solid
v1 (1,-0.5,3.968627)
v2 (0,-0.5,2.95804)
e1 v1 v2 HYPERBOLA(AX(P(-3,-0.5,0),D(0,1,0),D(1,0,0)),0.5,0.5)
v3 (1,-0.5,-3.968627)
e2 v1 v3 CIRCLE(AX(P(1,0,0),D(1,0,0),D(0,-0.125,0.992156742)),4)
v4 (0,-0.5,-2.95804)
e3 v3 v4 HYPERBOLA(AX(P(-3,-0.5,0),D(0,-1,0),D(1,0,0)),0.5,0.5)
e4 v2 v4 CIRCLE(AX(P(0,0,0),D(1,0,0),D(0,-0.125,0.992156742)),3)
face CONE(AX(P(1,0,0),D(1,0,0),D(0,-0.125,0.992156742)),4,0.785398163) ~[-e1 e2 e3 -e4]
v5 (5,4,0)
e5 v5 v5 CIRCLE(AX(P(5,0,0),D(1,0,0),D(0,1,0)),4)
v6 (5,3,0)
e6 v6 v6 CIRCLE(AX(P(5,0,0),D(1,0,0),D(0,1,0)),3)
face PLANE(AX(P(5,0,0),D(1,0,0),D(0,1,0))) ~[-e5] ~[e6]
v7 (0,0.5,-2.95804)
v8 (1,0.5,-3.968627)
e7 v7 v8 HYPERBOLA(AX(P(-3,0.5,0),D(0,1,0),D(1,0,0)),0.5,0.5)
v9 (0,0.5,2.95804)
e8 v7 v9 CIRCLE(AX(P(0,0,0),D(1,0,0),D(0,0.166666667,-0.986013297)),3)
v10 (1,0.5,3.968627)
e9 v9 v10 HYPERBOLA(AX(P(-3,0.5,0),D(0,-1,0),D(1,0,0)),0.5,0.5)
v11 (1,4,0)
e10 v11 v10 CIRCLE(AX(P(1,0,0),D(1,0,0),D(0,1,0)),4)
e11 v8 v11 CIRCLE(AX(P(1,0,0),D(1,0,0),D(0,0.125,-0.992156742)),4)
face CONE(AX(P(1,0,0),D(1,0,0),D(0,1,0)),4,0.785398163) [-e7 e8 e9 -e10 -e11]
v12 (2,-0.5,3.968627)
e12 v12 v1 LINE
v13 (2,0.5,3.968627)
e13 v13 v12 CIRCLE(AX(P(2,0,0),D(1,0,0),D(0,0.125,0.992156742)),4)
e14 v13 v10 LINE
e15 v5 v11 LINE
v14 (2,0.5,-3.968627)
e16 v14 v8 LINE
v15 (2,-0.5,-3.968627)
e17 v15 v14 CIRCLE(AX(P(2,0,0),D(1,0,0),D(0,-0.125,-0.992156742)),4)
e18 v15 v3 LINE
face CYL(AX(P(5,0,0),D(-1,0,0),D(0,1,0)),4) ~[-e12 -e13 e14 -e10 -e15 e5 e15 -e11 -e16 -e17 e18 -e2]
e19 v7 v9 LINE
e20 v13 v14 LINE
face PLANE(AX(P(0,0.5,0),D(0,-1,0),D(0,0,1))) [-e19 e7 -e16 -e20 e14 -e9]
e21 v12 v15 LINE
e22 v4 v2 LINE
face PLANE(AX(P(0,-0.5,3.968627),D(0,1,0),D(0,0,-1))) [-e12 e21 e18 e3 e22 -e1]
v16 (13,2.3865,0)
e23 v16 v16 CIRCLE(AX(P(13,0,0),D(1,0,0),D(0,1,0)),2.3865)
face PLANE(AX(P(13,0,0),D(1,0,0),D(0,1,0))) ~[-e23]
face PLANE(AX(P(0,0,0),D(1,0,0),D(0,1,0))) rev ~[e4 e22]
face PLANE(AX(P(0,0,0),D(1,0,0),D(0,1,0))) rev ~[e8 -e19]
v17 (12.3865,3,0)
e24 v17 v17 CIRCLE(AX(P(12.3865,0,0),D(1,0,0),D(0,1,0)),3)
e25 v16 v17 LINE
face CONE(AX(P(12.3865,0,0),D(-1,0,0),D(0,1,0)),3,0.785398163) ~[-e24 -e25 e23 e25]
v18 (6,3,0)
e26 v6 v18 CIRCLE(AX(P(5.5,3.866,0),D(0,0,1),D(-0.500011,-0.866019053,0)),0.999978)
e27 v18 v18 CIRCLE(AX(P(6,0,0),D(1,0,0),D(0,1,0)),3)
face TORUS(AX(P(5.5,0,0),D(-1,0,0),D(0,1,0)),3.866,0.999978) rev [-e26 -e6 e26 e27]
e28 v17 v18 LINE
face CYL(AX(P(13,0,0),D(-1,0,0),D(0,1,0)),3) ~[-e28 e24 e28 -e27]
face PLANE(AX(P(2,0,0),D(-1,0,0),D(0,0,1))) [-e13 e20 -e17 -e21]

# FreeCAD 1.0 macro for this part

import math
import FreeCAD as App
import Part
import Sketcher

V = App.Vector
Q = App.Units.Quantity


def edges_at(feature, points):
    """Names of the edges that pass closest to the given points."""
    edges = feature.Shape.Edges
    near = lambda p: min(range(len(edges)), key=lambda i: edges[i].distToShape(Part.Vertex(*p))[0])
    return sorted({f"Edge{near(p) + 1}" for p in points})

doc = App.newDocument("Part")
body = doc.addObject("PartDesign::Body", "Body")

sketch1 = doc.addObject("Sketcher::SketchObject", "Sketch")
body.addObject(sketch1)
sketch1.AttachmentSupport = (doc.XY_Plane, [""])
sketch1.MapMode = "FlatFace"
sketch1.addGeometry(Part.LineSegment(V(0, 4, 0), V(0, 0, 0)), False)
sketch1.addGeometry(Part.LineSegment(V(0, 0, 0), V(13, 0, 0)), False)
sketch1.addGeometry(Part.LineSegment(V(13, 0, 0), V(13, 3, 0)), False)
sketch1.addGeometry(Part.LineSegment(V(13, 3, 0), V(5, 3, 0)), False)
sketch1.addGeometry(Part.LineSegment(V(5, 3, 0), V(5, 4, 0)), False)
sketch1.addGeometry(Part.LineSegment(V(5, 4, 0), V(0, 4, 0)), False)
sketch1.addConstraint(Sketcher.Constraint("Coincident", 0, 2, 1, 1))
sketch1.addConstraint(Sketcher.Constraint("Coincident", 1, 2, 2, 1))
sketch1.addConstraint(Sketcher.Constraint("Coincident", 2, 2, 3, 1))
sketch1.addConstraint(Sketcher.Constraint("Coincident", 3, 2, 4, 1))
sketch1.addConstraint(Sketcher.Constraint("Coincident", 4, 2, 5, 1))
sketch1.addConstraint(Sketcher.Constraint("Coincident", 5, 2, 0, 1))
sketch1.addConstraint(Sketcher.Constraint("Vertical", 0))
sketch1.addConstraint(Sketcher.Constraint("Horizontal", 1))
sketch1.addConstraint(Sketcher.Constraint("Vertical", 2))
sketch1.addConstraint(Sketcher.Constraint("Horizontal", 3))
sketch1.addConstraint(Sketcher.Constraint("Vertical", 4))
sketch1.addConstraint(Sketcher.Constraint("Horizontal", 5))
sketch1.addConstraint(Sketcher.Constraint("Coincident", 0, 2, -1, 1))
sketch1.addConstraint(Sketcher.Constraint("DistanceX", 3, 2, 3, 1, Q("8 mm")))
sketch1.addConstraint(Sketcher.Constraint("DistanceX", 5, 2, 5, 1, Q("5 mm")))
sketch1.addConstraint(Sketcher.Constraint("DistanceY", 4, 1, 4, 2, Q("1 mm")))
sketch1.addConstraint(Sketcher.Constraint("DistanceY", 0, 2, 0, 1, Q("4 mm")))
revolution = doc.addObject("PartDesign::Revolution", "Revolution")
body.addObject(revolution)
revolution.Profile = sketch1
revolution.ReferenceAxis = (sketch1, ["H_Axis"])
revolution.Angle = 360

sketch2 = doc.addObject("Sketcher::SketchObject", "Sketch001")
body.addObject(sketch2)
sketch2.AttachmentSupport = (doc.YZ_Plane, [""])
sketch2.MapMode = "FlatFace"
sketch2.addGeometry(Part.LineSegment(V(0.5, -4, 0), V(-0.5, -4, 0)), False)
sketch2.addGeometry(Part.LineSegment(V(-0.5, -4, 0), V(-0.5, 4, 0)), False)
sketch2.addGeometry(Part.LineSegment(V(-0.5, 4, 0), V(0.5, 4, 0)), False)
sketch2.addGeometry(Part.LineSegment(V(0.5, 4, 0), V(0.5, -4, 0)), False)
sketch2.addConstraint(Sketcher.Constraint("Coincident", 0, 2, 1, 1))
sketch2.addConstraint(Sketcher.Constraint("Coincident", 1, 2, 2, 1))
sketch2.addConstraint(Sketcher.Constraint("Coincident", 2, 2, 3, 1))
sketch2.addConstraint(Sketcher.Constraint("Coincident", 3, 2, 0, 1))
sketch2.addConstraint(Sketcher.Constraint("Horizontal", 0))
sketch2.addConstraint(Sketcher.Constraint("Vertical", 1))
sketch2.addConstraint(Sketcher.Constraint("Horizontal", 2))
sketch2.addConstraint(Sketcher.Constraint("Vertical", 3))
sketch2.addConstraint(Sketcher.Constraint("Symmetric", 0, 2, 2, 2, -1, 1))
sketch2.addConstraint(Sketcher.Constraint("DistanceX", 0, 2, 0, 1, Q("1 mm")))
sketch2.addConstraint(Sketcher.Constraint("DistanceY", 1, 1, 1, 2, Q("8 mm")))
pocket1 = doc.addObject("PartDesign::Pocket", "Pocket")
body.addObject(pocket1)
pocket1.Profile = sketch2
pocket1.Length = 2
pocket1.Reversed = True
doc.recompute()

chamfer = doc.addObject("PartDesign::Chamfer", "Chamfer")
body.addObject(chamfer)
chamfer.Base = (pocket1, edges_at(pocket1, [(0, 3, -2.646), (0, 3, 2.646), (0, -4, 0)]))
chamfer.Size = 1
doc.recompute()

chamfer2 = doc.addObject("PartDesign::Chamfer", "Chamfer001")
body.addObject(chamfer2)
chamfer2.Base = (chamfer, edges_at(chamfer, [(13, -3, 0)]))
chamfer2.ChamferType = "Two distances"
chamfer2.Size = 0.6135
chamfer2.Size2 = 0.6135

sketch3 = doc.addObject("Sketcher::SketchObject", "Sketch002")
body.addObject(sketch3)
sketch3.AttachmentSupport = (doc.XY_Plane, [""])
sketch3.MapMode = "FlatFace"
sketch3.addGeometry(Part.ArcOfCircle(Part.Circle(V(5.5, 3.9, 0), V(0, 0, 1), 1), math.radians(-120), math.radians(-60)), False)
sketch3.addGeometry(Part.LineSegment(V(6, 3, 0), V(5, 3, 0)), False)
sketch3.addConstraint(Sketcher.Constraint("Coincident", 0, 1, 1, 2))
sketch3.addConstraint(Sketcher.Constraint("Coincident", 1, 1, 0, 2))
sketch3.addConstraint(Sketcher.Constraint("Horizontal", 1))
sketch3.addConstraint(Sketcher.Constraint("Radius", 0, Q("1 mm")))
sketch3.addConstraint(Sketcher.Constraint("DistanceX", 1, 2, 1, 1, Q("1 mm")))
sketch3.addConstraint(Sketcher.Constraint("DistanceX", -1, 1, 0, 1, Q("5 mm")))
sketch3.addConstraint(Sketcher.Constraint("DistanceY", -1, 1, 0, 1, Q("3 mm")))
groove = doc.addObject("PartDesign::Groove", "Groove")
body.addObject(groove)
groove.Profile = sketch3
groove.ReferenceAxis = (sketch3, ["H_Axis"])
groove.Angle = 360

doc.recompute()
